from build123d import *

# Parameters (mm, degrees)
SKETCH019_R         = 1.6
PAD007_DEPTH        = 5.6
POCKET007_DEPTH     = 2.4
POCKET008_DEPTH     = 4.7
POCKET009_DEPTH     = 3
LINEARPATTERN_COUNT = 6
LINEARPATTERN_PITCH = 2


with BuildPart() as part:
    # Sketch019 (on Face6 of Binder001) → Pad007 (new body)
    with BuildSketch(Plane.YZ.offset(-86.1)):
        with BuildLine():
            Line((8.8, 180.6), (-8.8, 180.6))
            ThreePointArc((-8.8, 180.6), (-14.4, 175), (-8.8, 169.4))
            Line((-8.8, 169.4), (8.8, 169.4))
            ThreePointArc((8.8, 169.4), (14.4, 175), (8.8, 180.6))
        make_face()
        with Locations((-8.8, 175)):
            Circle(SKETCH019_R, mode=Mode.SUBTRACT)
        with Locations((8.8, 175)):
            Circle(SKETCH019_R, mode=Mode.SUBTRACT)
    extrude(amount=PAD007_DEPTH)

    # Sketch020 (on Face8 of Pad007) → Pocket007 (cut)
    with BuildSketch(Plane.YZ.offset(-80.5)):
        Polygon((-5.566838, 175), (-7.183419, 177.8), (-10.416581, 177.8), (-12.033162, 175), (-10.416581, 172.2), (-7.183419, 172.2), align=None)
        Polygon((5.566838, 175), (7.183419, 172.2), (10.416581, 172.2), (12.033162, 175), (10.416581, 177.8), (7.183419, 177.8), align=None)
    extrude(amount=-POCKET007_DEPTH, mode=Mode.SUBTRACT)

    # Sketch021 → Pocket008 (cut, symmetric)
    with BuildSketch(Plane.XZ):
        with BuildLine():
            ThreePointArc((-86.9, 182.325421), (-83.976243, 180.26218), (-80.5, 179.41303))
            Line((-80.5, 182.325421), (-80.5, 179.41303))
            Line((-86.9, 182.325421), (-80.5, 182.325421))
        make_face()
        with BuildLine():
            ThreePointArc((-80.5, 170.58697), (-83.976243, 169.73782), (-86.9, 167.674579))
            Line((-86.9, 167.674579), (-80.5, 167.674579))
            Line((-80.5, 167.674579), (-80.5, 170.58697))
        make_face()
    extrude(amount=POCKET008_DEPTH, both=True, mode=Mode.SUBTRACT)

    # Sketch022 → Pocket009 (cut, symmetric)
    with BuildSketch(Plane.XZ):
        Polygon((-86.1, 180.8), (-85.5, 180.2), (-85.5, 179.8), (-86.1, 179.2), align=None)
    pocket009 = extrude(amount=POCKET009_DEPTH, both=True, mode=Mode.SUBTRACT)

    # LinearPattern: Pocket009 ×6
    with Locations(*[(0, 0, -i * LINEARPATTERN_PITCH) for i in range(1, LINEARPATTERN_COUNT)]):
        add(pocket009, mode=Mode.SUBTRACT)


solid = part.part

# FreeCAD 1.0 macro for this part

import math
import FreeCAD as App
import Part
import Sketcher

V = App.Vector
Q = App.Units.Quantity

doc = App.newDocument("Part")
body = doc.addObject("PartDesign::Body", "Body")

sketch1 = doc.addObject("Sketcher::SketchObject", "Sketch")
body.addObject(sketch1)
sketch1.AttachmentSupport = (doc.YZ_Plane, [""])
sketch1.MapMode = "FlatFace"
sketch1.AttachmentOffset = App.Placement(V(0, 0, -86.1), App.Rotation())
sketch1.addGeometry([
    Part.LineSegment(V(8.8, 180.6, 0), V(-8.8, 180.6, 0)),
    Part.ArcOfCircle(Part.Circle(V(-8.8, 175, 0), V(0, 0, 1), 5.6), math.radians(90), math.radians(270)),
    Part.LineSegment(V(-8.8, 169.4, 0), V(8.8, 169.4, 0)),
    Part.ArcOfCircle(Part.Circle(V(8.8, 175, 0), V(0, 0, 1), 5.6), math.radians(-90), math.radians(90)),
    Part.Circle(V(-8.8, 175, 0), V(0, 0, 1), 1.6),
    Part.Circle(V(8.8, 175, 0), V(0, 0, 1), 1.6),
], False)
sketch1.addConstraint([
    Sketcher.Constraint("Tangent", 0, 2, 1, 1),
    Sketcher.Constraint("Tangent", 1, 2, 2, 1),
    Sketcher.Constraint("Tangent", 2, 2, 3, 1),
    Sketcher.Constraint("Tangent", 3, 2, 0, 1),
    Sketcher.Constraint("Horizontal", 0),
    Sketcher.Constraint("Horizontal", 2),
    Sketcher.Constraint("Coincident", 4, 3, 1, 3),
    Sketcher.Constraint("Coincident", 5, 3, 3, 3),
    Sketcher.Constraint("Equal", 4, 5),
    Sketcher.Constraint("Diameter", 4, 3.2),
    Sketcher.Constraint("Radius", 1, 5.6),
    Sketcher.Constraint("DistanceX", 0, 2, 0, 1, 17.6),
    Sketcher.Constraint("DistanceY", -1, 1, 1, 3, 175.0),
    Sketcher.Constraint("DistanceX", 1, 3, -1, 1, 8.8),
])
pad1 = doc.addObject("PartDesign::Pad", "Pad")
body.addObject(pad1)
pad1.Profile = sketch1
pad1.Length = 5.6

sketch2 = doc.addObject("Sketcher::SketchObject", "Sketch001")
body.addObject(sketch2)
sketch2.AttachmentSupport = (doc.YZ_Plane, [""])
sketch2.MapMode = "FlatFace"
sketch2.AttachmentOffset = App.Placement(V(0, 0, -80.5), App.Rotation())
sketch2.addGeometry([
    Part.LineSegment(V(-5.6, 175, 0), V(-7.2, 177.8, 0)),
    Part.LineSegment(V(-7.2, 177.8, 0), V(-10.4, 177.8, 0)),
    Part.LineSegment(V(-10.4, 177.8, 0), V(-12, 175, 0)),
    Part.LineSegment(V(-12, 175, 0), V(-10.4, 172.2, 0)),
    Part.LineSegment(V(-10.4, 172.2, 0), V(-7.2, 172.2, 0)),
    Part.LineSegment(V(-7.2, 172.2, 0), V(-5.6, 175, 0)),
    Part.LineSegment(V(5.6, 175, 0), V(7.2, 172.2, 0)),
    Part.LineSegment(V(7.2, 172.2, 0), V(10.4, 172.2, 0)),
    Part.LineSegment(V(10.4, 172.2, 0), V(12, 175, 0)),
    Part.LineSegment(V(12, 175, 0), V(10.4, 177.8, 0)),
    Part.LineSegment(V(10.4, 177.8, 0), V(7.2, 177.8, 0)),
    Part.LineSegment(V(7.2, 177.8, 0), V(5.6, 175, 0)),
], False)
sketch2.addConstraint([
    Sketcher.Constraint("Coincident", 0, 2, 1, 1),
    Sketcher.Constraint("Coincident", 1, 2, 2, 1),
    Sketcher.Constraint("Coincident", 2, 2, 3, 1),
    Sketcher.Constraint("Coincident", 3, 2, 4, 1),
    Sketcher.Constraint("Coincident", 4, 2, 5, 1),
    Sketcher.Constraint("Coincident", 5, 2, 0, 1),
    Sketcher.Constraint("Coincident", 6, 2, 7, 1),
    Sketcher.Constraint("Coincident", 7, 2, 8, 1),
    Sketcher.Constraint("Coincident", 8, 2, 9, 1),
    Sketcher.Constraint("Coincident", 9, 2, 10, 1),
    Sketcher.Constraint("Coincident", 10, 2, 11, 1),
    Sketcher.Constraint("Coincident", 11, 2, 6, 1),
    Sketcher.Constraint("Horizontal", 1),
    Sketcher.Constraint("Horizontal", 4),
    Sketcher.Constraint("Horizontal", 7),
    Sketcher.Constraint("Horizontal", 10),
    Sketcher.Constraint("Symmetric", 4, 2, 6, 2, -2),
    Sketcher.Constraint("Symmetric", 2, 2, 8, 2, -2),
    Sketcher.Constraint("Symmetric", 1, 2, 9, 2, -2),
    Sketcher.Constraint("Symmetric", 5, 2, 11, 2, -2),
    Sketcher.Constraint("Parallel", 0, 3),
    Sketcher.Constraint("Parallel", 2, 5),
    Sketcher.Constraint("Parallel", 3, 6),
    Sketcher.Constraint("Parallel", 5, 8),
    Sketcher.Constraint("Parallel", 8, 11),
    Sketcher.Constraint("Horizontal", 2, 2, 5, 2),
    Sketcher.Constraint("Vertical", 1, 2, 3, 2),
    Sketcher.Constraint("Angle", 0, Q("120.000004 deg")),
    Sketcher.Constraint("DistanceY", -1, 1, 2, 2, 175.0),
    Sketcher.Constraint("DistanceY", -1, 1, 0, 2, 177.8),
    Sketcher.Constraint("DistanceX", 3, 2, 6, 2, 17.6),
    Sketcher.Constraint("DistanceX", 1, 2, 1, 1, 3.233162),
])
pocket1 = doc.addObject("PartDesign::Pocket", "Pocket")
body.addObject(pocket1)
pocket1.Profile = sketch2
pocket1.Length = 2.4

sketch3 = doc.addObject("Sketcher::SketchObject", "Sketch002")
body.addObject(sketch3)
sketch3.AttachmentSupport = (doc.XZ_Plane, [""])
sketch3.MapMode = "FlatFace"
sketch3.addGeometry([
    Part.ArcOfCircle(Part.Circle(V(-80, 189, 0), V(0, 0, 1), 9.6), math.radians(-136), math.radians(-93)),
    Part.LineSegment(V(-80.5, 179.4, 0), V(-80.5, 182.3, 0)),
    Part.LineSegment(V(-80.5, 182.3, 0), V(-86.9, 182.3, 0)),
    Part.ArcOfCircle(Part.Circle(V(-80, 161, 0), V(0, 0, 1), 9.6), math.radians(93), math.radians(136)),
    Part.LineSegment(V(-86.9, 167.7, 0), V(-80.5, 167.7, 0)),
    Part.LineSegment(V(-80.5, 167.7, 0), V(-80.5, 170.6, 0)),
], False)
sketch3.addConstraint([
    Sketcher.Constraint("Coincident", 0, 2, 1, 1),
    Sketcher.Constraint("Coincident", 1, 2, 2, 1),
    Sketcher.Constraint("Coincident", 2, 2, 0, 1),
    Sketcher.Constraint("Coincident", 3, 2, 4, 1),
    Sketcher.Constraint("Coincident", 4, 2, 5, 1),
    Sketcher.Constraint("Coincident", 5, 2, 3, 1),
    Sketcher.Constraint("Vertical", 1),
    Sketcher.Constraint("Horizontal", 2),
    Sketcher.Constraint("Horizontal", 4),
    Sketcher.Constraint("Vertical", 5),
    Sketcher.Constraint("Equal", 0, 3),
    Sketcher.Constraint("Vertical", 0, 3, 3, 3),
    Sketcher.Constraint("Vertical", 2, 2, 3, 2),
    Sketcher.Constraint("Vertical", 1, 2, 4, 2),
    Sketcher.Constraint("DistanceX", 2, 2, 2, 1, 6.4),
    Sketcher.Constraint("DistanceX", 0, 2, -1, 1, 80.5),
    Sketcher.Constraint("Radius", 0, 9.599995),
    Sketcher.Constraint("DistanceY", 1, 1, 1, 2, 2.912391),
    Sketcher.Constraint("DistanceY", -1, 1, 0, 2, 179.41303),
    Sketcher.Constraint("DistanceY", -1, 1, 3, 2, 167.674579),
])
pocket2 = doc.addObject("PartDesign::Pocket", "Pocket001")
body.addObject(pocket2)
pocket2.Profile = sketch3
pocket2.Length = 9.4
pocket2.Midplane = True

sketch4 = doc.addObject("Sketcher::SketchObject", "Sketch003")
body.addObject(sketch4)
sketch4.AttachmentSupport = (doc.XZ_Plane, [""])
sketch4.MapMode = "FlatFace"
sketch4.addGeometry([
    Part.LineSegment(V(-85.5, 180.2, 0), V(-86.1, 180.8, 0)),
    Part.LineSegment(V(-86.1, 180.8, 0), V(-86.1, 179.2, 0)),
    Part.LineSegment(V(-86.1, 179.2, 0), V(-85.5, 179.8, 0)),
    Part.LineSegment(V(-85.5, 179.8, 0), V(-85.5, 180.2, 0)),
], False)
sketch4.addConstraint([
    Sketcher.Constraint("Coincident", 0, 2, 1, 1),
    Sketcher.Constraint("Coincident", 1, 2, 2, 1),
    Sketcher.Constraint("Coincident", 2, 2, 3, 1),
    Sketcher.Constraint("Coincident", 3, 2, 0, 1),
    Sketcher.Constraint("Vertical", 1),
    Sketcher.Constraint("Vertical", 3),
    Sketcher.Constraint("Perpendicular", 0, 2),
    Sketcher.Constraint("Equal", 0, 2),
    Sketcher.Constraint("DistanceY", 1, 2, 1, 1, 1.6),
    Sketcher.Constraint("DistanceY", 3, 1, 3, 2, 0.4),
    Sketcher.Constraint("DistanceX", 0, 2, -1, 1, 86.1),
    Sketcher.Constraint("DistanceY", -1, 1, 0, 2, 180.8),
])
pocket3 = doc.addObject("PartDesign::Pocket", "Pocket002")
body.addObject(pocket3)
pocket3.Profile = sketch4
pocket3.Length = 6
pocket3.Midplane = True
doc.recompute()

linearpattern = doc.addObject("PartDesign::LinearPattern", "LinearPattern")
body.addObject(linearpattern)
linearpattern.Originals = [pocket3]
linearpattern.Direction = (doc.Z_Axis, [""])
linearpattern.Mode = "offset"
linearpattern.Offset = 2
linearpattern.Occurrences = 6
linearpattern.Reversed = True
body.Tip = linearpattern

doc.recompute()
